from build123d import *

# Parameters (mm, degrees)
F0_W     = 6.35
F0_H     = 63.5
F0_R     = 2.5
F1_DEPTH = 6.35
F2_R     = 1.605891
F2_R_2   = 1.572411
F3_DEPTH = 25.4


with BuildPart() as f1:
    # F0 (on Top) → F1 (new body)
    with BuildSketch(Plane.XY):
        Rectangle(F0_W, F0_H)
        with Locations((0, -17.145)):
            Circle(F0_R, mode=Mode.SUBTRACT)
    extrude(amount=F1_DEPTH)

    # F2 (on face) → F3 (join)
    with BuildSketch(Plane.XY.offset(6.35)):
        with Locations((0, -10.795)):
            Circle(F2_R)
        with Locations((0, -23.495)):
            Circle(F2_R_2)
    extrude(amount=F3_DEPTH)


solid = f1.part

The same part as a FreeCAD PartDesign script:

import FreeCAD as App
import Part
import Sketcher

V = App.Vector
Q = App.Units.Quantity


def add_polygon(sketch, points):
    """Adds a closed chain of lines whose ends are joined by coincident constraints."""
    first, n = sketch.GeometryCount, len(points)
    for a, b in zip(points, points[1:] + points[:1]):
        sketch.addGeometry(Part.LineSegment(App.Vector(*a, 0), App.Vector(*b, 0)), False)
    for i in range(n):
        sketch.addConstraint(Sketcher.Constraint("Coincident", first + i, 2, first + (i + 1) % n, 1))

doc = App.newDocument("Part")
params = doc.addObject("Spreadsheet::Sheet", "Params")
for row, (alias, value) in enumerate([
    ("sketch1_height", "2.5 in"),
    ("sketch1_width", "0.25 in"),
    ("pad1_length", "0.25 in"),
    ("pad2_length", "1 in"),
], start=1):
    params.set(f"A{row}", alias)
    params.set(f"B{row}", "=" + value)
    params.setAlias(f"B{row}", alias)

body = doc.addObject("PartDesign::Body", "Body")

# Sketch on XY plane
sketch1 = body.newObject("Sketcher::SketchObject", "Sketch")
sketch1.AttachmentSupport = (doc.getObject("XY_Plane"), [""])
sketch1.MapMode = "FlatFace"
add_polygon(sketch1, [(-3.2, 31.8), (-3.2, -31.8), (3.2, -31.8), (3.2, 31.8)])  # lines 0-3
sketch1.addGeometry(Part.Circle(V(0, -17.1, 0), V(0, 0, 1), 2.5), False)  # 4
sketch1.addConstraint(Sketcher.Constraint("Vertical", 0))
sketch1.addConstraint(Sketcher.Constraint("Horizontal", 1))
sketch1.addConstraint(Sketcher.Constraint("Vertical", 2))
sketch1.addConstraint(Sketcher.Constraint("Horizontal", 3))
sketch1.addConstraint(Sketcher.Constraint("Symmetric", 0, 2, 2, 2, -1, 1))
sketch1.addConstraint(Sketcher.Constraint("PointOnObject", 4, 3, -2))
sketch1.addConstraint(Sketcher.Constraint("DistanceY", 0, 2, 0, 1, Q("2.5 in")))
sketch1.addConstraint(Sketcher.Constraint("DistanceX", 1, 1, 1, 2, Q("0.25 in")))
sketch1.addConstraint(Sketcher.Constraint("Diameter", 4, 5.0))
sketch1.addConstraint(Sketcher.Constraint("DistanceY", 4, 3, -1, 1, Q("0.675 in")))
sketch1.setExpression("Constraints[10]", "Params.sketch1_height")
sketch1.setExpression("Constraints[11]", "Params.sketch1_width")
pad1 = body.newObject("PartDesign::Pad", "Pad")
pad1.Profile = sketch1
pad1.setExpression("Length", "Params.pad1_length")

# Sketch on XY plane
sketch2 = body.newObject("Sketcher::SketchObject", "Sketch001")
sketch2.AttachmentSupport = (doc.getObject("XY_Plane"), [""])
sketch2.MapMode = "FlatFace"
sketch2.AttachmentOffset = App.Placement(V(0, 0, 0.25 * 25.4), App.Rotation())
sketch2.addGeometry(Part.Circle(V(0, -10.8, 0), V(0, 0, 1), 1.6), False)
sketch2.addGeometry(Part.Circle(V(0, -23.5, 0), V(0, 0, 1), 1.6), False)
sketch2.addConstraint(Sketcher.Constraint("PointOnObject", 0, 3, -2))
sketch2.addConstraint(Sketcher.Constraint("PointOnObject", 1, 3, -2))
sketch2.addConstraint(Sketcher.Constraint("DistanceY", 1, 3, 0, 3, Q("0.5 in")))
sketch2.addConstraint(Sketcher.Constraint("Diameter", 0, 3.211782))
sketch2.addConstraint(Sketcher.Constraint("Diameter", 1, 3.144822))
sketch2.addConstraint(Sketcher.Constraint("DistanceY", 0, 3, -1, 1, Q("0.425 in")))
pad2 = body.newObject("PartDesign::Pad", "Pad001")
pad2.Profile = sketch2
pad2.setExpression("Length", "Params.pad2_length")

doc.recompute()
